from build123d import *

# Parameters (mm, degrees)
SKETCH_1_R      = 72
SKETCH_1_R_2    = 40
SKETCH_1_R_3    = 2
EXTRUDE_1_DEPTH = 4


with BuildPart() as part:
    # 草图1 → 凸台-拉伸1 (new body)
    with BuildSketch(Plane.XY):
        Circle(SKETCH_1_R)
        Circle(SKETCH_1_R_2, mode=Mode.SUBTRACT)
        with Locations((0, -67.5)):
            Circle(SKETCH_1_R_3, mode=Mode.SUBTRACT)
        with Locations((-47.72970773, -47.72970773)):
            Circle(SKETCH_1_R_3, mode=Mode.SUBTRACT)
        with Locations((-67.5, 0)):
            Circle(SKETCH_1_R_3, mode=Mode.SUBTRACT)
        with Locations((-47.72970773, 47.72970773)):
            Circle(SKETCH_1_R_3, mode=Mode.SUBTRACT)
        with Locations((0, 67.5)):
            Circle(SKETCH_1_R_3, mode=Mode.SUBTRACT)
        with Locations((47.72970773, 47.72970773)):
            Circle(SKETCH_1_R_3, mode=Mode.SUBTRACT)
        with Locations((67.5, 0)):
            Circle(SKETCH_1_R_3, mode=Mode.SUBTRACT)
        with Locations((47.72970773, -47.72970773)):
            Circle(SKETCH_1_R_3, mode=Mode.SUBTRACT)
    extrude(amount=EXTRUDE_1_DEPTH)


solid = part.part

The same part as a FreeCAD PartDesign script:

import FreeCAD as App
import Part
import Sketcher

V = App.Vector
Q = App.Units.Quantity

doc = App.newDocument("Part")
params = doc.addObject("Spreadsheet::Sheet", "Params")
for row, (alias, value) in enumerate([
    ("sketch1_diameter", "144 mm"),
    ("sketch1_diameter2", "4 mm"),
    ("sketch1_diameter3", "80 mm"),
    ("pad1_length", "4 mm"),
], start=1):
    params.set(f"A{row}", alias)
    params.set(f"B{row}", "=" + value)
    params.setAlias(f"B{row}", alias)

body = doc.addObject("PartDesign::Body", "Body")

sketch1 = body.newObject("Sketcher::SketchObject", "Sketch")
sketch1.AttachmentSupport = (doc.getObject("XY_Plane"), [""])
sketch1.MapMode = "FlatFace"
sketch1.addGeometry([
    Part.Circle(V(0, 0, 0), V(0, 0, 1), 72),
    Part.Circle(V(-47.729708, -47.729708, 0), V(0, 0, 1), 2),
    Part.Circle(V(0, -67.5, 0), V(0, 0, 1), 2),
    Part.Circle(V(47.729708, -47.729708, 0), V(0, 0, 1), 2),
    Part.Circle(V(-67.5, 0, 0), V(0, 0, 1), 2),
    Part.Circle(V(-47.729708, 47.729708, 0), V(0, 0, 1), 2),
    Part.Circle(V(0, 0, 0), V(0, 0, 1), 40),
    Part.Circle(V(67.5, 0, 0), V(0, 0, 1), 2),
    Part.Circle(V(0, 67.5, 0), V(0, 0, 1), 2),
    Part.Circle(V(47.729708, 47.729708, 0), V(0, 0, 1), 2),
], False)
sketch1.addConstraint([
    Sketcher.Constraint("Coincident", 0, 3, -1, 1),
    Sketcher.Constraint("Coincident", 6, 3, -1, 1),
    Sketcher.Constraint("Equal", 1, 2),
    Sketcher.Constraint("Equal", 2, 3),
    Sketcher.Constraint("Equal", 3, 4),
    Sketcher.Constraint("Equal", 4, 5),
    Sketcher.Constraint("Equal", 5, 7),
    Sketcher.Constraint("Equal", 7, 8),
    Sketcher.Constraint("Equal", 8, 9),
    Sketcher.Constraint("Symmetric", 3, 3, 5, 3, -1, 1),
    Sketcher.Constraint("Symmetric", 4, 3, 7, 3, -1, 1),
    Sketcher.Constraint("Symmetric", 2, 3, 8, 3, -1, 1),
    Sketcher.Constraint("Symmetric", 1, 3, 9, 3, -1, 1),
    Sketcher.Constraint("Symmetric", 1, 3, 3, 3, -2),
    Sketcher.Constraint("PointOnObject", 2, 3, -2),
    Sketcher.Constraint("PointOnObject", 4, 3, -1),
    Sketcher.Constraint("Diameter", 0, Q("144 mm")),
    Sketcher.Constraint("Diameter", 1, Q("4 mm")),
    Sketcher.Constraint("Diameter", 6, Q("80 mm")),
    Sketcher.Constraint("DistanceY", 2, 3, -1, 1, Q("67.5 mm")),
    Sketcher.Constraint("DistanceX", 4, 3, -1, 1, Q("67.5 mm")),
    Sketcher.Constraint("DistanceX", 1, 3, -1, 1, Q("47.729708 mm")),
    Sketcher.Constraint("DistanceY", 1, 3, -1, 1, Q("47.729708 mm")),
])
sketch1.setExpression("Constraints[16]", "Params.sketch1_diameter")
sketch1.setExpression("Constraints[17]", "Params.sketch1_diameter2")
sketch1.setExpression("Constraints[18]", "Params.sketch1_diameter3")
pad1 = body.newObject("PartDesign::Pad", "Pad")
pad1.Profile = sketch1
pad1.setExpression("Length", "Params.pad1_length")

doc.recompute()
